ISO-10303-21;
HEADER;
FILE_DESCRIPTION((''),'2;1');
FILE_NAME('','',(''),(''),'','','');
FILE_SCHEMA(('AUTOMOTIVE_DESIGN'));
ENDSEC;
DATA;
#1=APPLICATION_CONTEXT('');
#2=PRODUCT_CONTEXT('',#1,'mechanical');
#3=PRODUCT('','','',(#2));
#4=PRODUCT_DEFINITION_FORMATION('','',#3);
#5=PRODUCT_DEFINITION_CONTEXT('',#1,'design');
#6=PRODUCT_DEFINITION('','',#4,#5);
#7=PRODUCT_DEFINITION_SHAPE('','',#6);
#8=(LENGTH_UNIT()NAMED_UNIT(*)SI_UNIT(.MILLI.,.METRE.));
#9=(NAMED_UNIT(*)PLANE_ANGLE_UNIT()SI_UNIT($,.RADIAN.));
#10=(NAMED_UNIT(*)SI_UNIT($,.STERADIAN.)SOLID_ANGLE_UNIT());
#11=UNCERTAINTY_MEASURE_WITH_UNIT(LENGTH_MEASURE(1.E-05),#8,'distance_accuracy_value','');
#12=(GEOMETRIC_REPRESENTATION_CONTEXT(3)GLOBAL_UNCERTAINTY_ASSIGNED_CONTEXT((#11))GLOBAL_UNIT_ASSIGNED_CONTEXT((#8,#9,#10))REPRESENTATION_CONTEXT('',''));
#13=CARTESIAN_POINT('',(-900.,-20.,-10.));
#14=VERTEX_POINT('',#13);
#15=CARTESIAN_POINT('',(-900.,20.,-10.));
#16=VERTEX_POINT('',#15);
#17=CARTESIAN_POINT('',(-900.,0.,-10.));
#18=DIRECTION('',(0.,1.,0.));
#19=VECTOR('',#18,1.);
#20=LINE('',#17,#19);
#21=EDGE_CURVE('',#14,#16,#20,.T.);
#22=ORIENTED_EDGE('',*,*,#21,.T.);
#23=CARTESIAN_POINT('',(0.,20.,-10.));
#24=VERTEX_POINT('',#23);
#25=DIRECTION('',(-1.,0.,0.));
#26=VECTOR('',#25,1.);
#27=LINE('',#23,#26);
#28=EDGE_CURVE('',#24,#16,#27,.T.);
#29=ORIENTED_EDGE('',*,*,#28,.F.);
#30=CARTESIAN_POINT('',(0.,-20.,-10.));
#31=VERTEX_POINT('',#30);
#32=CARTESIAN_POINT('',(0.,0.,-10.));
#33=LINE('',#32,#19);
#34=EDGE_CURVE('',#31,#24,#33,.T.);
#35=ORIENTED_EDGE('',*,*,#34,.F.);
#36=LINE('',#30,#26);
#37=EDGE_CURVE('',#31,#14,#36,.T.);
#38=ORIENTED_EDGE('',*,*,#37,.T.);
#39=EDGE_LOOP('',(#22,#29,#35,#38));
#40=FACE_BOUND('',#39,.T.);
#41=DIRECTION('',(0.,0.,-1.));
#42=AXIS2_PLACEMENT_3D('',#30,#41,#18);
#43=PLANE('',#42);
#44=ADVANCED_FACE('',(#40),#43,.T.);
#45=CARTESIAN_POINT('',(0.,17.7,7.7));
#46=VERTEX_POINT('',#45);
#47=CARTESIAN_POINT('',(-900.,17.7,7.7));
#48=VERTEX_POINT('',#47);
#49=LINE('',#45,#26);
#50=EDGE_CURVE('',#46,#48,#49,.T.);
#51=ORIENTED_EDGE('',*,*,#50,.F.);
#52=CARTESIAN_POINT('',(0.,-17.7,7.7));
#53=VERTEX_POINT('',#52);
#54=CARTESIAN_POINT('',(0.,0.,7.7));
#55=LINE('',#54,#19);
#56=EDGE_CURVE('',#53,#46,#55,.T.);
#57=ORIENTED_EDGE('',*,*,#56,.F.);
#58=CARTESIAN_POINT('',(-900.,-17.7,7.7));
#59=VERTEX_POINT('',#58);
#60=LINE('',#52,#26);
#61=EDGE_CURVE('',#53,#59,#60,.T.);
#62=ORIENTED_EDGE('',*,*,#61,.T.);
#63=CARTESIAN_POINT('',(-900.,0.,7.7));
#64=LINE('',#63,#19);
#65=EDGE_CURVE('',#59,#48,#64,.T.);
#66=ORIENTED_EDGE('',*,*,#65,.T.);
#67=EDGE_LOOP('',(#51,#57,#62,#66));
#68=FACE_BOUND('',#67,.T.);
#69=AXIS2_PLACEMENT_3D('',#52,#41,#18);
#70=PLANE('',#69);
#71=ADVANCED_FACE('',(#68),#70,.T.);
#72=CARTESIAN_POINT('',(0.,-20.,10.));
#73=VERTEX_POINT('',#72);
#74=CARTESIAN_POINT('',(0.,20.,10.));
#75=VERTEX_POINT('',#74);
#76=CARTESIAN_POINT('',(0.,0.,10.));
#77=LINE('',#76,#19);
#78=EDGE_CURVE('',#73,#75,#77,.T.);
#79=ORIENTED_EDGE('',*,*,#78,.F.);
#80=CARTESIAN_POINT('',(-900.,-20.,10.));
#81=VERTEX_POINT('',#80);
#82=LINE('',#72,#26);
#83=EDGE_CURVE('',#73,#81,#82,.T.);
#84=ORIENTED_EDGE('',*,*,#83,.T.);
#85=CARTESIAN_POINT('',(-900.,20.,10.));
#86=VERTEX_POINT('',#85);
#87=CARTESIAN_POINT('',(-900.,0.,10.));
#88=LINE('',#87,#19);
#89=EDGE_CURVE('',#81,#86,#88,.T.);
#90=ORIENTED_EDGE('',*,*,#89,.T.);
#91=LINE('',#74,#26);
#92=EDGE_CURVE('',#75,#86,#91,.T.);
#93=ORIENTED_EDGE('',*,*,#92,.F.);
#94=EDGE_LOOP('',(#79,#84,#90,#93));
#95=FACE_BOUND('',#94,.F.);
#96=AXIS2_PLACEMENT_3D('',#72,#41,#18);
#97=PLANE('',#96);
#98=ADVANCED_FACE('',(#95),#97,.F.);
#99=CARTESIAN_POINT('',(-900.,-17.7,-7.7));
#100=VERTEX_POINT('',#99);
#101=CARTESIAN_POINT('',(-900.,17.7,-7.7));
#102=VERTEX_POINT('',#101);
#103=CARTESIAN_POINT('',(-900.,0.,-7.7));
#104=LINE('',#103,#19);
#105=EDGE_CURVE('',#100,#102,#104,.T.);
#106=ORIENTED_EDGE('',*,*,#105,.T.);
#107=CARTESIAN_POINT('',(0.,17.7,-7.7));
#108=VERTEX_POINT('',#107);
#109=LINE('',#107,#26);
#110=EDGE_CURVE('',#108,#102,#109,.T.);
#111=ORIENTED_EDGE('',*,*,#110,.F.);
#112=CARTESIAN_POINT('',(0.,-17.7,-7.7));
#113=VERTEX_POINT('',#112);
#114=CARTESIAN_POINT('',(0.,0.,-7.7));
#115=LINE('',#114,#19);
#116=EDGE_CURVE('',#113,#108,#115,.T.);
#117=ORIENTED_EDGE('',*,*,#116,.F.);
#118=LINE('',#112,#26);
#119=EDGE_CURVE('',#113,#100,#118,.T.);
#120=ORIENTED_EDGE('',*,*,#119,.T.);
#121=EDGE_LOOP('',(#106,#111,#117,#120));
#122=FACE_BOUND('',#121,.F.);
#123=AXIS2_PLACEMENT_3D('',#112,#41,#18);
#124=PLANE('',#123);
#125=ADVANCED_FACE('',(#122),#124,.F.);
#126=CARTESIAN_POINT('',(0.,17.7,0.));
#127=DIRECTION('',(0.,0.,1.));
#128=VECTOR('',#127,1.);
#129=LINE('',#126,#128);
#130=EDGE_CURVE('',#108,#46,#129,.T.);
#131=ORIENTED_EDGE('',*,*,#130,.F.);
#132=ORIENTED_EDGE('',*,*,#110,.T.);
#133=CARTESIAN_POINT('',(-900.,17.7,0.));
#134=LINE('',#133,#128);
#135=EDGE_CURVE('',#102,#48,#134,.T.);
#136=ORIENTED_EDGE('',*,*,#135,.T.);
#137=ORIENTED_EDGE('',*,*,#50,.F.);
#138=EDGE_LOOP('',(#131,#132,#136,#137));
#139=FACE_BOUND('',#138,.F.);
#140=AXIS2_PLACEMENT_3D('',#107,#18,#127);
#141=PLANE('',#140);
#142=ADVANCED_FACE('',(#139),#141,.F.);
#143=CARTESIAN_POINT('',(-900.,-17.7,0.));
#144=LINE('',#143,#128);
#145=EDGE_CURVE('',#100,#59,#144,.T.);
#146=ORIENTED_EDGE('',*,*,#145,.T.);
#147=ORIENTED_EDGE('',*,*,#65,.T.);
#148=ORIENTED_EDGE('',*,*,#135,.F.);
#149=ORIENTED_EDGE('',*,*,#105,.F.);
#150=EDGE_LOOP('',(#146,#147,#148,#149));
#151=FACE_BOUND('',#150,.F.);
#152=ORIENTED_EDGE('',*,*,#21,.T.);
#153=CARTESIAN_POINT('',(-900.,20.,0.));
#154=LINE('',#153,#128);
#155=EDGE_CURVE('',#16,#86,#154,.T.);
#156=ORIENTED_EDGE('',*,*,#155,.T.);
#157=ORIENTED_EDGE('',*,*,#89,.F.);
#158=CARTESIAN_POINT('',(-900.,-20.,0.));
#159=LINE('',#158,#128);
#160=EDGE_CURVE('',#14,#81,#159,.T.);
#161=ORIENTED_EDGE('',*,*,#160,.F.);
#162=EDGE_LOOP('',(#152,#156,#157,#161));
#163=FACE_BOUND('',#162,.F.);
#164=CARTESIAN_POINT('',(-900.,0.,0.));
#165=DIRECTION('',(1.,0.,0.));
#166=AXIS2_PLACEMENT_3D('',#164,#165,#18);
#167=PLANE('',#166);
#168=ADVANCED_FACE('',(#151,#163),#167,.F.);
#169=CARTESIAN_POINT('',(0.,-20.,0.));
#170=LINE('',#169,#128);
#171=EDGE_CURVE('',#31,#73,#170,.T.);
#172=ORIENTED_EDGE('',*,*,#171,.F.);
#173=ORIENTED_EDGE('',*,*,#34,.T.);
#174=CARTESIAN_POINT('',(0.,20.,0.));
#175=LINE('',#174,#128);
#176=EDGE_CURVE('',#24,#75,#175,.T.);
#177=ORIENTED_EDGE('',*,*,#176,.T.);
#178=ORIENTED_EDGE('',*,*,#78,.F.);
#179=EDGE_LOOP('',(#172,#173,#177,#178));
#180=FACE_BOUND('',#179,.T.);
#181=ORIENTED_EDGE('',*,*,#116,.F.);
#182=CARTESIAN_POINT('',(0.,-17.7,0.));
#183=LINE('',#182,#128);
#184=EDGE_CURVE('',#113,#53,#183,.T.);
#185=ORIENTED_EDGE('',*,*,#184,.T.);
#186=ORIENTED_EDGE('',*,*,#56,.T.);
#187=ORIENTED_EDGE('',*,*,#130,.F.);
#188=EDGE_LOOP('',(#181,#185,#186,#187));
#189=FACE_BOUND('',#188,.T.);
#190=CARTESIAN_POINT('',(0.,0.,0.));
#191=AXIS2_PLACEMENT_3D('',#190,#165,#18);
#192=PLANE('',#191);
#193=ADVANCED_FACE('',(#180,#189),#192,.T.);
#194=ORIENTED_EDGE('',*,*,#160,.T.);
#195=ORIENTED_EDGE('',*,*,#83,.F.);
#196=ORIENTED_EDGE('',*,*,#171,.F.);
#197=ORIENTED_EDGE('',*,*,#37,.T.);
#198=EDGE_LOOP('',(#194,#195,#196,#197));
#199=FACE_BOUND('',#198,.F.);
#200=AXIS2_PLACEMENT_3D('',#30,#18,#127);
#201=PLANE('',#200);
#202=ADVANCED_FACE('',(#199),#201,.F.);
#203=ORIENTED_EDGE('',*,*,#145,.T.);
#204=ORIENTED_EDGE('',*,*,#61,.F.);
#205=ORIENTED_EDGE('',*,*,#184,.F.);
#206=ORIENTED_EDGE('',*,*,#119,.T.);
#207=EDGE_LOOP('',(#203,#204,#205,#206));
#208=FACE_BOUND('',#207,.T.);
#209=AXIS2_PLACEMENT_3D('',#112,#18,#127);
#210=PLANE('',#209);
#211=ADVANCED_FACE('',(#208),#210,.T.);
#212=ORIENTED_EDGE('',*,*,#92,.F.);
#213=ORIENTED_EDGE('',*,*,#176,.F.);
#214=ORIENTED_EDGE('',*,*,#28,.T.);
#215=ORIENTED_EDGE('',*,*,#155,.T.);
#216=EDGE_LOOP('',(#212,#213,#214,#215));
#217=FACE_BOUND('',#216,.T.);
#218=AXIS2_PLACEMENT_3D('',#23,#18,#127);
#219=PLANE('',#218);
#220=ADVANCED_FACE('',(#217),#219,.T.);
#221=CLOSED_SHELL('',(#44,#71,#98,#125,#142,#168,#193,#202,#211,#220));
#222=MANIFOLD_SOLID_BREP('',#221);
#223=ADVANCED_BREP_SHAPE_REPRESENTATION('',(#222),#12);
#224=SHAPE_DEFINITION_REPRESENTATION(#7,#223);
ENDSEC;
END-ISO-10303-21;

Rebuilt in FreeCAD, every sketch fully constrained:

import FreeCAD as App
import Part
import Sketcher
from FreeCAD import Vector
Q = App.Units.Quantity

doc = App.newDocument("Part")
body = doc.addObject("PartDesign::Body", "Body")

sketch1 = body.newObject("Sketcher::SketchObject", "Sketch")
sketch1.AttachmentSupport = (doc.getObject("YZ_Plane"), [""])
sketch1.MapMode = "FlatFace"
sketch1.addGeometry([
    Part.LineSegment(Vector(-20, 10, 0), Vector(-20, -10, 0)),
    Part.LineSegment(Vector(-20, -10, 0), Vector(20, -10, 0)),
    Part.LineSegment(Vector(20, -10, 0), Vector(20, 10, 0)),
    Part.LineSegment(Vector(20, 10, 0), Vector(-20, 10, 0)),
    Part.LineSegment(Vector(17.7, -7.7, 0), Vector(-17.7, -7.7, 0)),
    Part.LineSegment(Vector(-17.7, -7.7, 0), Vector(-17.7, 7.7, 0)),
    Part.LineSegment(Vector(-17.7, 7.7, 0), Vector(17.7, 7.7, 0)),
    Part.LineSegment(Vector(17.7, 7.7, 0), Vector(17.7, -7.7, 0)),
], False)
sketch1.addConstraint([
    Sketcher.Constraint("Coincident", 0, 2, 1, 1),
    Sketcher.Constraint("Coincident", 1, 2, 2, 1),
    Sketcher.Constraint("Coincident", 2, 2, 3, 1),
    Sketcher.Constraint("Coincident", 3, 2, 0, 1),
    Sketcher.Constraint("Coincident", 4, 2, 5, 1),
    Sketcher.Constraint("Coincident", 5, 2, 6, 1),
    Sketcher.Constraint("Coincident", 6, 2, 7, 1),
    Sketcher.Constraint("Coincident", 7, 2, 4, 1),
    Sketcher.Constraint("Vertical", 0),
    Sketcher.Constraint("Horizontal", 1),
    Sketcher.Constraint("Vertical", 2),
    Sketcher.Constraint("Horizontal", 3),
    Sketcher.Constraint("Horizontal", 4),
    Sketcher.Constraint("Vertical", 5),
    Sketcher.Constraint("Horizontal", 6),
    Sketcher.Constraint("Vertical", 7),
    Sketcher.Constraint("Symmetric", 0, 2, 2, 2, -1, 1),
    Sketcher.Constraint("Symmetric", 4, 2, 6, 2, -1, 1),
    Sketcher.Constraint("DistanceX", 1, 1, 1, 2, Q("40 mm")),
    Sketcher.Constraint("DistanceY", 0, 2, 0, 1, Q("20 mm")),
    Sketcher.Constraint("DistanceX", 4, 2, 4, 1, Q("35.4 mm")),
    Sketcher.Constraint("DistanceY", 5, 1, 5, 2, Q("15.4 mm")),
])
pad1 = body.newObject("PartDesign::Pad", "Pad")
pad1.Profile = sketch1
pad1.Length = 900
pad1.Reversed = True

doc.recompute()
